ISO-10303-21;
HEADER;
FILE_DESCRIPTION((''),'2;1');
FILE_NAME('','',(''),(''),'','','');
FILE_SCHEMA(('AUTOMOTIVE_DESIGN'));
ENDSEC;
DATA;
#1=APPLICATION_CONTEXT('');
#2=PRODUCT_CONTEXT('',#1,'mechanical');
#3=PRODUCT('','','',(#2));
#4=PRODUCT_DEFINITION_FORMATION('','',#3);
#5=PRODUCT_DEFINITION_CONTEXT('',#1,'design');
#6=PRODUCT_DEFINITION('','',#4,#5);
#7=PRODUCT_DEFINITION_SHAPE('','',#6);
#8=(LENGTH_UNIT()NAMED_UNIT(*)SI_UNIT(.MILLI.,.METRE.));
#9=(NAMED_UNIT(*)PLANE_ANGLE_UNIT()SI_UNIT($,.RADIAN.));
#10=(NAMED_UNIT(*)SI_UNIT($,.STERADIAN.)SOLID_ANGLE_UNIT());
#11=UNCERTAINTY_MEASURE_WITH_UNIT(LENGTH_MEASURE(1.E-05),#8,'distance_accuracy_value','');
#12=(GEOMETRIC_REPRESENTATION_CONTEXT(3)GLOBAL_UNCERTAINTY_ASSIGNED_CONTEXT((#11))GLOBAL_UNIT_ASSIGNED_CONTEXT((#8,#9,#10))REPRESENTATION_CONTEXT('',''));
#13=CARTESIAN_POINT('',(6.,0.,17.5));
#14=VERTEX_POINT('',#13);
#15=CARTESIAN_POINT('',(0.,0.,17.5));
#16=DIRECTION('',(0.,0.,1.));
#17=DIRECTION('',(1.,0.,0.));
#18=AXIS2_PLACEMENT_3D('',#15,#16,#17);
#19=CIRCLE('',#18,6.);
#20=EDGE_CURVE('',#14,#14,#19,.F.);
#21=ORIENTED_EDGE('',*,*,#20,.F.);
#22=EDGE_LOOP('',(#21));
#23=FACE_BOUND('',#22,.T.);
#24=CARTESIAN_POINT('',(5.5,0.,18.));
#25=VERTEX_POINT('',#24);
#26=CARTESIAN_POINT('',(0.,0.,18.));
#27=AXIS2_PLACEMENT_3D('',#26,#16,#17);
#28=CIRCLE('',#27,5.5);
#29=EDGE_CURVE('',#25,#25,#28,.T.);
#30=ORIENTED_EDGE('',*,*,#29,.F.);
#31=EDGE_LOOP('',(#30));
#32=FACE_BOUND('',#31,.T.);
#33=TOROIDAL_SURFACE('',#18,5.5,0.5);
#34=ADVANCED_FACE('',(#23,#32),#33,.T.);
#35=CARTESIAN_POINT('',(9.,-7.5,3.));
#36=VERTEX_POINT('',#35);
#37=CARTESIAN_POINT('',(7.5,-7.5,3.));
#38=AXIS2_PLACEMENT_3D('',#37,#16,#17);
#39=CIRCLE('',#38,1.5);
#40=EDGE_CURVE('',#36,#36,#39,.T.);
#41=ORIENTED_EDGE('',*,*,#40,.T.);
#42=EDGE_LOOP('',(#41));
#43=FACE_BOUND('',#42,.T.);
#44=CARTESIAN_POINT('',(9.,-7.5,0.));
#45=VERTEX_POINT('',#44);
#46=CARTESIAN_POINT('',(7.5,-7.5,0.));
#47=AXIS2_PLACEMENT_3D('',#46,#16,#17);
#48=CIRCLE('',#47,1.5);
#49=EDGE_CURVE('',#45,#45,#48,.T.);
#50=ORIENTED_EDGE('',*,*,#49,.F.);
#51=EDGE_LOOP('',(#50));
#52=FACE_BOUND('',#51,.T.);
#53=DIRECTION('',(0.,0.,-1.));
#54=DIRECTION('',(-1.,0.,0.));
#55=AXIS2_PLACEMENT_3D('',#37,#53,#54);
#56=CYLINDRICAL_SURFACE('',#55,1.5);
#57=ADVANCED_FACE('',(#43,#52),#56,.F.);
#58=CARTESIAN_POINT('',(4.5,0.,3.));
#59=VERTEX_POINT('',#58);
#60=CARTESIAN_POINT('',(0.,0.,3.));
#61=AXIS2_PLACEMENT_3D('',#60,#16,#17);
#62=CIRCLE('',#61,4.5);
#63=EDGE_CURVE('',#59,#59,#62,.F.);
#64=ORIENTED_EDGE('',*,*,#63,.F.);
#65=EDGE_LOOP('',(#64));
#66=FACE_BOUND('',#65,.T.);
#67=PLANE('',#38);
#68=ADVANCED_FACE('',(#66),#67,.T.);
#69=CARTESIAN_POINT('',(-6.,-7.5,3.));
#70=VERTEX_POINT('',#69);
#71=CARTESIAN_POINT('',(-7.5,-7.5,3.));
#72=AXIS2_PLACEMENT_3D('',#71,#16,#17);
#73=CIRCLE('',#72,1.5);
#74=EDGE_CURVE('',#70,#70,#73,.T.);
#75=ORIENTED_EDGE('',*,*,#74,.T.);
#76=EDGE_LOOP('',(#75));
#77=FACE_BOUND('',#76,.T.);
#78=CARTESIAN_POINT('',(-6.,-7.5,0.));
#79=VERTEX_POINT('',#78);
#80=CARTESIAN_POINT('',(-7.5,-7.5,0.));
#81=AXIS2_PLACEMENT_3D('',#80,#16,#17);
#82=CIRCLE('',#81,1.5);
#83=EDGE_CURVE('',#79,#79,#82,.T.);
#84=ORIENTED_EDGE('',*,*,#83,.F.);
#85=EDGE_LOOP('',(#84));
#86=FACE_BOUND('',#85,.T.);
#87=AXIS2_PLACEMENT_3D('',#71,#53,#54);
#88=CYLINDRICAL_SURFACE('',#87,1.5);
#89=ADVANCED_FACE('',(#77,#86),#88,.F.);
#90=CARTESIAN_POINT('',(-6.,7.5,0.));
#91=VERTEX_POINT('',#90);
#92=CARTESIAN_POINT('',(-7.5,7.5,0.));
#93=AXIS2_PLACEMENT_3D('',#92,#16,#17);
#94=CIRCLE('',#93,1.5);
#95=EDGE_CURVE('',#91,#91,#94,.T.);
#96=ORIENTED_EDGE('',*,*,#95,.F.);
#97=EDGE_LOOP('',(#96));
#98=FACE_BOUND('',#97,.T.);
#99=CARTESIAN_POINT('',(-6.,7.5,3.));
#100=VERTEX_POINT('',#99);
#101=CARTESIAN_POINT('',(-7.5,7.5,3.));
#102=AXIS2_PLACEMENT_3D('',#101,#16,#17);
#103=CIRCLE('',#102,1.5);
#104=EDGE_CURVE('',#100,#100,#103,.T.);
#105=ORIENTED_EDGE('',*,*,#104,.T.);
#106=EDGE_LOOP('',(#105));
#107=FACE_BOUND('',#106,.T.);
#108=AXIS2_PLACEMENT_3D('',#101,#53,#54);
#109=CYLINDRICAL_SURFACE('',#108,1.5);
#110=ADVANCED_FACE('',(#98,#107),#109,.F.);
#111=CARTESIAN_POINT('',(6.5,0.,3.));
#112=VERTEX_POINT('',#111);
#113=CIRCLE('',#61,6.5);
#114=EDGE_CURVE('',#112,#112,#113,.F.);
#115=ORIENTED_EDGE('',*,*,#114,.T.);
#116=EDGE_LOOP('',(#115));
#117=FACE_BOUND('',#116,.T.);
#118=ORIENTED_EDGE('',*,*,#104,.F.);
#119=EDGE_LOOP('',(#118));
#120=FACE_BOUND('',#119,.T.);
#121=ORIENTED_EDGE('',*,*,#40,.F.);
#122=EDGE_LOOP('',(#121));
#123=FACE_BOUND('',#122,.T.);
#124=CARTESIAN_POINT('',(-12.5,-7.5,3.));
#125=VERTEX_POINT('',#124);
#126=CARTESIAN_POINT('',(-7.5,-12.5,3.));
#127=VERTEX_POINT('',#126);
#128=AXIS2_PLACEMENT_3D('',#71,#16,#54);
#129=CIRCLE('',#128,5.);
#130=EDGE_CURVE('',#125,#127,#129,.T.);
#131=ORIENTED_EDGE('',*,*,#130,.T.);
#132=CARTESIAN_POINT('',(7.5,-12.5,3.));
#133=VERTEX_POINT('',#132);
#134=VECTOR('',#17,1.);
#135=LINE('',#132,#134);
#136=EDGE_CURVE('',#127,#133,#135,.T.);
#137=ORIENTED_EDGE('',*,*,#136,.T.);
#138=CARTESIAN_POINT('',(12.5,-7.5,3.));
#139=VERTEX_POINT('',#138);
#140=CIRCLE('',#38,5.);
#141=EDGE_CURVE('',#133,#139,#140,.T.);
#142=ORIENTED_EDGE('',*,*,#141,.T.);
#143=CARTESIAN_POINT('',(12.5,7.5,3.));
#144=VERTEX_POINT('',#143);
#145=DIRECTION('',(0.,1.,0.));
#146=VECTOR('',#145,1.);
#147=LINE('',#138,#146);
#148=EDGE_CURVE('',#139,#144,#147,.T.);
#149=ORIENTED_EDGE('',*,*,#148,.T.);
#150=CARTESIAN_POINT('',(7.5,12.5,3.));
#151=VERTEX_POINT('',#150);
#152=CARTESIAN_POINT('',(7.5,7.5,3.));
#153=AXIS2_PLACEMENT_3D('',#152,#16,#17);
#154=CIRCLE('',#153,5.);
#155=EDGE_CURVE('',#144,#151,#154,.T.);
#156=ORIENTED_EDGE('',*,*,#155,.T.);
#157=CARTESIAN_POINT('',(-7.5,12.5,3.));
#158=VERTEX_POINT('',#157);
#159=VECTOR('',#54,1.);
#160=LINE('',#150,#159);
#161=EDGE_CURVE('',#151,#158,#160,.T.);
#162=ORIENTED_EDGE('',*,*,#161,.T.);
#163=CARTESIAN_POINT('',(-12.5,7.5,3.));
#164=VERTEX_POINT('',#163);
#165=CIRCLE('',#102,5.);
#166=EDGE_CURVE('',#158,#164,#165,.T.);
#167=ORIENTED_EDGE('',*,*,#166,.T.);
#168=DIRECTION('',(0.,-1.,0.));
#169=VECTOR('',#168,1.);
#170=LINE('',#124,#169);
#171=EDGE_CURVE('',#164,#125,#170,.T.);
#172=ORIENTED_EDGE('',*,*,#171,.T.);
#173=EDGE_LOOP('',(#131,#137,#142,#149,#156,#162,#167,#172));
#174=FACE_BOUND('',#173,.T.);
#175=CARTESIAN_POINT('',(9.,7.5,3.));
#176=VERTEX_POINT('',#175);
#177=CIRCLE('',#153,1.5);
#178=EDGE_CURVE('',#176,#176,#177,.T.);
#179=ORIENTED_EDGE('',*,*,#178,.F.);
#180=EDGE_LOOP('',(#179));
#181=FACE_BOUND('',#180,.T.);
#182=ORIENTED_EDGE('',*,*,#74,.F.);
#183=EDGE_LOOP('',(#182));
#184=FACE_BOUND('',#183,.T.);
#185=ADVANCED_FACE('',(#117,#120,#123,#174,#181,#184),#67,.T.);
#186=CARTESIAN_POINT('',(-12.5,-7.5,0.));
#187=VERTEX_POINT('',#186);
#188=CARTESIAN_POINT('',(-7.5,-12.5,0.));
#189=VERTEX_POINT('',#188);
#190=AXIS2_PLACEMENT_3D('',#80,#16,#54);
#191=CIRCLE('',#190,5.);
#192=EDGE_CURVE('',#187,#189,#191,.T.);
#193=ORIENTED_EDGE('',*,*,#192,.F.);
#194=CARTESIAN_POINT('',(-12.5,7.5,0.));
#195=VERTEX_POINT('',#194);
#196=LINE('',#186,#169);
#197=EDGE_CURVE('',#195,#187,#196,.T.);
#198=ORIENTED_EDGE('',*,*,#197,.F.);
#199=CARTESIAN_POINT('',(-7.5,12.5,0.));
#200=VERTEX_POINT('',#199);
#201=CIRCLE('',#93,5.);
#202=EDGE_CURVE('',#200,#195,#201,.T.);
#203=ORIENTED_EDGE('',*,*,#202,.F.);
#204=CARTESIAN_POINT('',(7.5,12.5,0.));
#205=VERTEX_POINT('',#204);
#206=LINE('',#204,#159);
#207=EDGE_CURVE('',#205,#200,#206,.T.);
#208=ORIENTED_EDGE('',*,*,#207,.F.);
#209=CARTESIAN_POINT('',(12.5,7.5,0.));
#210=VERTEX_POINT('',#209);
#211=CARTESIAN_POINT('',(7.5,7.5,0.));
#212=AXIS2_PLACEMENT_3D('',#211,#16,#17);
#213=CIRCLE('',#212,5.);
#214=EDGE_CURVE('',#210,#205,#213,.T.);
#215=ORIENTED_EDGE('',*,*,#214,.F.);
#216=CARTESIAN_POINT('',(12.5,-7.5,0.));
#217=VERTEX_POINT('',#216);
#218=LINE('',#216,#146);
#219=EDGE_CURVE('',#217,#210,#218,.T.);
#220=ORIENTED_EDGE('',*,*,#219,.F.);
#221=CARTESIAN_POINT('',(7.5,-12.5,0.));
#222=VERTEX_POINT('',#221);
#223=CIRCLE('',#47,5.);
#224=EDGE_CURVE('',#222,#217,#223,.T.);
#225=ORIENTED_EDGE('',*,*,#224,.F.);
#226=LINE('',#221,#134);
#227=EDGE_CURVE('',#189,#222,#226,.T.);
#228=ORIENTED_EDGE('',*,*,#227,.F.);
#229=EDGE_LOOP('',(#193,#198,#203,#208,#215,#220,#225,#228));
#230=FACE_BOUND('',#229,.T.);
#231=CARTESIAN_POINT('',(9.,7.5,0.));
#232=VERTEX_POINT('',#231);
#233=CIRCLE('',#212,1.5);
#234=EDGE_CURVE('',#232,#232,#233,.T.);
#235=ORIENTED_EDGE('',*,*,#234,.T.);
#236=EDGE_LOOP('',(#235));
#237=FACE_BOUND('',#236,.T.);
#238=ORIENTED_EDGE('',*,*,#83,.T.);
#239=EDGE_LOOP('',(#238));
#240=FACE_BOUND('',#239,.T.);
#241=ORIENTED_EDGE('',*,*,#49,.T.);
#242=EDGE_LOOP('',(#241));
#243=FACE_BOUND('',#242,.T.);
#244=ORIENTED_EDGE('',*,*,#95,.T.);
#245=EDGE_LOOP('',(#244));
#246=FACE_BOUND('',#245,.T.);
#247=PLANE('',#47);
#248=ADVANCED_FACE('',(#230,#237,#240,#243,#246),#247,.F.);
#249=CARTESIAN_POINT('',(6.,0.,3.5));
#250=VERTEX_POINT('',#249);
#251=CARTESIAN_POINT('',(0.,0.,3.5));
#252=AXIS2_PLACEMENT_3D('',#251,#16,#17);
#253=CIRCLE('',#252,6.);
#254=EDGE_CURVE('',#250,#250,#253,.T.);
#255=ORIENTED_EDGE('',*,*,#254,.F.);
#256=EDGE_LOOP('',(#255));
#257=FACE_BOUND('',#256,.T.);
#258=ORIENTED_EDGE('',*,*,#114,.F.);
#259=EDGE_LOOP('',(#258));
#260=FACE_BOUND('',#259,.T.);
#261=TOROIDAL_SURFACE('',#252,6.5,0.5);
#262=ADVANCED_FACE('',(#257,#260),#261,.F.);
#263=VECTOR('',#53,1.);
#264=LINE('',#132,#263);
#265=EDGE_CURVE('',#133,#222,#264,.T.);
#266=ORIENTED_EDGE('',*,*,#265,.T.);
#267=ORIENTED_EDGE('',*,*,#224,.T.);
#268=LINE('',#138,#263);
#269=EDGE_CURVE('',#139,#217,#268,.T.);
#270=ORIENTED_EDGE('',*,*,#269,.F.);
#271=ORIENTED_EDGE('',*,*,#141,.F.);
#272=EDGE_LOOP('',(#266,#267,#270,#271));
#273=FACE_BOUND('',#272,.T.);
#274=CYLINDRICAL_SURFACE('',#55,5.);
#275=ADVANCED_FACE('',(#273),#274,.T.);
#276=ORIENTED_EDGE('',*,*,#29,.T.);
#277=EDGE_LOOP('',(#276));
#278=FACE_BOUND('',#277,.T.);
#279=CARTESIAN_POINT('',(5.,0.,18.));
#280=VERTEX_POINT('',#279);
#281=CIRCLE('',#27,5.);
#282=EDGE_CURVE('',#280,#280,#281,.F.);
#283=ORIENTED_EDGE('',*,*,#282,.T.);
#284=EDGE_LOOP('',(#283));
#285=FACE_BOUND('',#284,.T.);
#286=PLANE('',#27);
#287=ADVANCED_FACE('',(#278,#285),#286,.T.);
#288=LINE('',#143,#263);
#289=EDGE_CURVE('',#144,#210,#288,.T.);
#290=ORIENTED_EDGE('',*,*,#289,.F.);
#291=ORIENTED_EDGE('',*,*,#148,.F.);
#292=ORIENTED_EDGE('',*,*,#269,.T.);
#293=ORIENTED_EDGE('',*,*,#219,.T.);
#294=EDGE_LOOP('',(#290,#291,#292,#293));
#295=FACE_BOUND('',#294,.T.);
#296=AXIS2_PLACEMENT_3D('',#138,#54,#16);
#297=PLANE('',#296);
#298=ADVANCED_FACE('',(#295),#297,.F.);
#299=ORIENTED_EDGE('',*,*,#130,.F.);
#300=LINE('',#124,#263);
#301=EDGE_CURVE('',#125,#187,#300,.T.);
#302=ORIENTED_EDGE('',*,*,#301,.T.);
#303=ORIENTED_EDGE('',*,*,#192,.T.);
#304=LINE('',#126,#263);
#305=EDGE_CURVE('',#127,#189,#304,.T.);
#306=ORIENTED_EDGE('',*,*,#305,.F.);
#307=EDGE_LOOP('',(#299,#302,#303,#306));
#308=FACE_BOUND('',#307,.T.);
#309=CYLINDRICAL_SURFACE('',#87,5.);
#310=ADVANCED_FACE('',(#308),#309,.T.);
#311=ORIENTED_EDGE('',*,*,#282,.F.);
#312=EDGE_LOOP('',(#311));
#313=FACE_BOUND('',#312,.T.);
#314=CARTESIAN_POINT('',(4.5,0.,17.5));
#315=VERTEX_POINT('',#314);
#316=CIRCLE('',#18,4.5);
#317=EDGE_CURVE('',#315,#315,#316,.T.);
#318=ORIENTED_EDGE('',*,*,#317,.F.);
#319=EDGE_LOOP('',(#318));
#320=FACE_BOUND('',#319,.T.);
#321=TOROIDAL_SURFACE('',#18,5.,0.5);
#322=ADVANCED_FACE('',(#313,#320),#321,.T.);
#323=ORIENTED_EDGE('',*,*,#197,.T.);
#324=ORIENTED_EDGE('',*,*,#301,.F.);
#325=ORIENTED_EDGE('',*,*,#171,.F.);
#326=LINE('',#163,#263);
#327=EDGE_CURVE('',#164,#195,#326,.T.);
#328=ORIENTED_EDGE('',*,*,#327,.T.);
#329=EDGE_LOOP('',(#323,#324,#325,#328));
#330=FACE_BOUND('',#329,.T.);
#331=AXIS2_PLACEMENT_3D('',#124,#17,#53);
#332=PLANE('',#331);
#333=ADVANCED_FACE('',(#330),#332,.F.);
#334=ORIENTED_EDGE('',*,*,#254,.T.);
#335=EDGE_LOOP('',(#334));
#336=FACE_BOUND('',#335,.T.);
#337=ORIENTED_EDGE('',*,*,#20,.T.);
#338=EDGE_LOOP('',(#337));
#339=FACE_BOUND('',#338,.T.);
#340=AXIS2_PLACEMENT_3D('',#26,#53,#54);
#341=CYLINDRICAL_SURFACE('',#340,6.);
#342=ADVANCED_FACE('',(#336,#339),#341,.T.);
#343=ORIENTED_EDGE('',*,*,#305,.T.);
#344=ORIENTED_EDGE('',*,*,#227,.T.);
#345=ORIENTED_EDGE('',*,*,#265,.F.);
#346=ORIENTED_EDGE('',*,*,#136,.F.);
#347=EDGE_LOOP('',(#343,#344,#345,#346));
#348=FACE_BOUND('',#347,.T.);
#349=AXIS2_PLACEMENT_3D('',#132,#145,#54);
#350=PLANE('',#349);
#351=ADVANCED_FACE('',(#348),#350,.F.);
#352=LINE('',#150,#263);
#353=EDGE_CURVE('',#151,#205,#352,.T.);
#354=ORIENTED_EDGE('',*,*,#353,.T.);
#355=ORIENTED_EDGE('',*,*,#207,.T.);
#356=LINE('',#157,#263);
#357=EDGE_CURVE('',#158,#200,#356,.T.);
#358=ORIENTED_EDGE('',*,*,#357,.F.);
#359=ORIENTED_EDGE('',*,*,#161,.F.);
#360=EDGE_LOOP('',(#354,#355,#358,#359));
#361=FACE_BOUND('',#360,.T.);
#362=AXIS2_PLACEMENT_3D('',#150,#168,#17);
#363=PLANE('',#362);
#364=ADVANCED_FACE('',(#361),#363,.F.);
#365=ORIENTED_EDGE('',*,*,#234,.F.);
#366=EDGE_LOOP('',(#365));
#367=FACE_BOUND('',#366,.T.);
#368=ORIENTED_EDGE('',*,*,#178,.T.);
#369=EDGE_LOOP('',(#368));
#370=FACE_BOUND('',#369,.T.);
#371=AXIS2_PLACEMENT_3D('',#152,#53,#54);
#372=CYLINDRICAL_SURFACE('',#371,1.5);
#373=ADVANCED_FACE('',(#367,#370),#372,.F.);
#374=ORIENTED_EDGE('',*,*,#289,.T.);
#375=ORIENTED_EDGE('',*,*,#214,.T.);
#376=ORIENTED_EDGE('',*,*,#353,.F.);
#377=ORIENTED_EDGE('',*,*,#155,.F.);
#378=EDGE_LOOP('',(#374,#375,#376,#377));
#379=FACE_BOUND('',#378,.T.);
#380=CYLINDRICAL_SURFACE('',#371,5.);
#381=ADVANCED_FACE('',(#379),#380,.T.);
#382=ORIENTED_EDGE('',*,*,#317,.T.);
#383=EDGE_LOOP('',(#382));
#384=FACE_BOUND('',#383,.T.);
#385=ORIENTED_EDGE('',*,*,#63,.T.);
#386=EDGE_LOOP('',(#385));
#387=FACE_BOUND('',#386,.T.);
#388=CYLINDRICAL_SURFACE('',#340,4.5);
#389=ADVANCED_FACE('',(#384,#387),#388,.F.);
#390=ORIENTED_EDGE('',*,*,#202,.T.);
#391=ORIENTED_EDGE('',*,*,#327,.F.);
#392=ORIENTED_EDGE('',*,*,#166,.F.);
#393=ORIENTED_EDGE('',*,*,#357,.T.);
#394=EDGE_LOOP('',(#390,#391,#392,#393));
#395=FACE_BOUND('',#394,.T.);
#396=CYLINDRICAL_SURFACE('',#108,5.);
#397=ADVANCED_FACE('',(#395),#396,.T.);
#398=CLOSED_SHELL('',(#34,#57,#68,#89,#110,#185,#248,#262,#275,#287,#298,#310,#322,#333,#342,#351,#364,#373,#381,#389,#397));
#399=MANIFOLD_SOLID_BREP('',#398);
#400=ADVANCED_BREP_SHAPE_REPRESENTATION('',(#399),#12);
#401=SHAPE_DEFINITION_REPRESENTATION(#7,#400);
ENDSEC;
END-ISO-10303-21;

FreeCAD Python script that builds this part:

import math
import FreeCAD as App
import Part
import Sketcher
Q = App.Units.Quantity


def edges_at(feature, points):
    """Names of the edges that pass closest to the given points."""
    edges = feature.Shape.Edges
    near = lambda p: min(range(len(edges)), key=lambda i: edges[i].distToShape(Part.Vertex(*p))[0])
    return sorted({f"Edge{near(p) + 1}" for p in points})

doc = App.newDocument("Part")
params = doc.addObject("Spreadsheet::Sheet", "Params")
for row, (alias, value) in enumerate([
    ("sketch1_diameter", "3 mm"),
    ("sketch1_radius", "5 mm"),
    ("sketch1_width", "15 mm"),
    ("pad1_length", "3 mm"),
    ("sketch2_diameter", "12 mm"),
    ("sketch2_diameter2", "9 mm"),
    ("pad2_length", "15 mm"),
    ("fillet_radius", "0.5 mm"),
], start=1):
    params.set(f"A{row}", alias)
    params.set(f"B{row}", "=" + value)
    params.setAlias(f"B{row}", alias)

body = doc.addObject("PartDesign::Body", "Body")

# Sketch on XY plane
sketch1 = body.newObject("Sketcher::SketchObject", "Sketch")
sketch1.AttachmentSupport = (doc.getObject("XY_Plane"), [""])
sketch1.MapMode = "FlatFace"
sketch1.addGeometry(Part.LineSegment(App.Vector(-7.5, -12.5, 0), App.Vector(7.5, -12.5, 0)), False)
sketch1.addGeometry(Part.ArcOfCircle(Part.Circle(App.Vector(7.5, -7.5, 0), App.Vector(0, 0, 1), 5), math.radians(-90), math.radians(0)), False)
sketch1.addGeometry(Part.LineSegment(App.Vector(12.5, -7.5, 0), App.Vector(12.5, 7.5, 0)), False)
sketch1.addGeometry(Part.ArcOfCircle(Part.Circle(App.Vector(7.5, 7.5, 0), App.Vector(0, 0, 1), 5), math.radians(0), math.radians(90)), False)
sketch1.addGeometry(Part.LineSegment(App.Vector(7.5, 12.5, 0), App.Vector(-7.5, 12.5, 0)), False)
sketch1.addGeometry(Part.ArcOfCircle(Part.Circle(App.Vector(-7.5, 7.5, 0), App.Vector(0, 0, 1), 5), math.radians(90), math.radians(180)), False)
sketch1.addGeometry(Part.LineSegment(App.Vector(-12.5, 7.5, 0), App.Vector(-12.5, -7.5, 0)), False)
sketch1.addGeometry(Part.ArcOfCircle(Part.Circle(App.Vector(-7.5, -7.5, 0), App.Vector(0, 0, 1), 5), math.radians(180), math.radians(270)), False)
sketch1.addGeometry(Part.Circle(App.Vector(7.5, -7.5, 0), App.Vector(0, 0, 1), 1.5), False)
sketch1.addGeometry(Part.Circle(App.Vector(-7.5, -7.5, 0), App.Vector(0, 0, 1), 1.5), False)
sketch1.addGeometry(Part.Circle(App.Vector(7.5, 7.5, 0), App.Vector(0, 0, 1), 1.5), False)
sketch1.addGeometry(Part.Circle(App.Vector(-7.5, 7.5, 0), App.Vector(0, 0, 1), 1.5), False)
sketch1.addConstraint(Sketcher.Constraint("Tangent", 0, 2, 1, 1))
sketch1.addConstraint(Sketcher.Constraint("Tangent", 1, 2, 2, 1))
sketch1.addConstraint(Sketcher.Constraint("Tangent", 2, 2, 3, 1))
sketch1.addConstraint(Sketcher.Constraint("Tangent", 3, 2, 4, 1))
sketch1.addConstraint(Sketcher.Constraint("Tangent", 4, 2, 5, 1))
sketch1.addConstraint(Sketcher.Constraint("Tangent", 5, 2, 6, 1))
sketch1.addConstraint(Sketcher.Constraint("Tangent", 6, 2, 7, 1))
sketch1.addConstraint(Sketcher.Constraint("Tangent", 7, 2, 0, 1))
sketch1.addConstraint(Sketcher.Constraint("Horizontal", 0))
sketch1.addConstraint(Sketcher.Constraint("Vertical", 2))
sketch1.addConstraint(Sketcher.Constraint("Horizontal", 4))
sketch1.addConstraint(Sketcher.Constraint("Vertical", 6))
sketch1.addConstraint(Sketcher.Constraint("Coincident", 8, 3, 1, 3))
sketch1.addConstraint(Sketcher.Constraint("Coincident", 9, 3, 7, 3))
sketch1.addConstraint(Sketcher.Constraint("Coincident", 10, 3, 3, 3))
sketch1.addConstraint(Sketcher.Constraint("Coincident", 11, 3, 5, 3))
sketch1.addConstraint(Sketcher.Constraint("Equal", 1, 3))
sketch1.addConstraint(Sketcher.Constraint("Equal", 3, 5))
sketch1.addConstraint(Sketcher.Constraint("Equal", 5, 7))
sketch1.addConstraint(Sketcher.Constraint("Equal", 8, 9))
sketch1.addConstraint(Sketcher.Constraint("Equal", 9, 10))
sketch1.addConstraint(Sketcher.Constraint("Equal", 10, 11))
sketch1.addConstraint(Sketcher.Constraint("Symmetric", 1, 3, 5, 3, -1, 1))
sketch1.addConstraint(Sketcher.Constraint("Equal", 4, 2))
sketch1.addConstraint(Sketcher.Constraint("Diameter", 8, Q("3 mm")))
sketch1.addConstraint(Sketcher.Constraint("Radius", 1, Q("5 mm")))
sketch1.addConstraint(Sketcher.Constraint("DistanceX", 0, 1, 0, 2, Q("15 mm")))
sketch1.setExpression("Constraints[24]", "Params.sketch1_diameter")
sketch1.setExpression("Constraints[25]", "Params.sketch1_radius")
sketch1.setExpression("Constraints[26]", "Params.sketch1_width")
pad1 = body.newObject("PartDesign::Pad", "Pad")
pad1.Profile = sketch1
pad1.setExpression("Length", "Params.pad1_length")

# Sketch on XY plane
sketch2 = body.newObject("Sketcher::SketchObject", "Sketch001")
sketch2.AttachmentSupport = (doc.getObject("XY_Plane"), [""])
sketch2.MapMode = "FlatFace"
sketch2.AttachmentOffset = App.Placement(App.Vector(0, 0, 3), App.Rotation())
sketch2.addGeometry(Part.Circle(App.Vector(0, 0, 0), App.Vector(0, 0, 1), 6), False)
sketch2.addGeometry(Part.Circle(App.Vector(0, 0, 0), App.Vector(0, 0, 1), 4.5), False)
sketch2.addConstraint(Sketcher.Constraint("Coincident", 0, 3, -1, 1))
sketch2.addConstraint(Sketcher.Constraint("Coincident", 1, 3, -1, 1))
sketch2.addConstraint(Sketcher.Constraint("Diameter", 0, Q("12 mm")))
sketch2.addConstraint(Sketcher.Constraint("Diameter", 1, Q("9 mm")))
sketch2.setExpression("Constraints[2]", "Params.sketch2_diameter")
sketch2.setExpression("Constraints[3]", "Params.sketch2_diameter2")
pad2 = body.newObject("PartDesign::Pad", "Pad001")
pad2.Profile = sketch2
pad2.setExpression("Length", "Params.pad2_length")
doc.recompute()

fillet = body.newObject("PartDesign::Fillet", "Fillet")
fillet.Base = (pad2, edges_at(pad2, [(-6, 0, 18), (-6, 0, 3), (-4.5, 0, 18)]))
fillet.setExpression("Radius", "Params.fillet_radius")

doc.recompute()
